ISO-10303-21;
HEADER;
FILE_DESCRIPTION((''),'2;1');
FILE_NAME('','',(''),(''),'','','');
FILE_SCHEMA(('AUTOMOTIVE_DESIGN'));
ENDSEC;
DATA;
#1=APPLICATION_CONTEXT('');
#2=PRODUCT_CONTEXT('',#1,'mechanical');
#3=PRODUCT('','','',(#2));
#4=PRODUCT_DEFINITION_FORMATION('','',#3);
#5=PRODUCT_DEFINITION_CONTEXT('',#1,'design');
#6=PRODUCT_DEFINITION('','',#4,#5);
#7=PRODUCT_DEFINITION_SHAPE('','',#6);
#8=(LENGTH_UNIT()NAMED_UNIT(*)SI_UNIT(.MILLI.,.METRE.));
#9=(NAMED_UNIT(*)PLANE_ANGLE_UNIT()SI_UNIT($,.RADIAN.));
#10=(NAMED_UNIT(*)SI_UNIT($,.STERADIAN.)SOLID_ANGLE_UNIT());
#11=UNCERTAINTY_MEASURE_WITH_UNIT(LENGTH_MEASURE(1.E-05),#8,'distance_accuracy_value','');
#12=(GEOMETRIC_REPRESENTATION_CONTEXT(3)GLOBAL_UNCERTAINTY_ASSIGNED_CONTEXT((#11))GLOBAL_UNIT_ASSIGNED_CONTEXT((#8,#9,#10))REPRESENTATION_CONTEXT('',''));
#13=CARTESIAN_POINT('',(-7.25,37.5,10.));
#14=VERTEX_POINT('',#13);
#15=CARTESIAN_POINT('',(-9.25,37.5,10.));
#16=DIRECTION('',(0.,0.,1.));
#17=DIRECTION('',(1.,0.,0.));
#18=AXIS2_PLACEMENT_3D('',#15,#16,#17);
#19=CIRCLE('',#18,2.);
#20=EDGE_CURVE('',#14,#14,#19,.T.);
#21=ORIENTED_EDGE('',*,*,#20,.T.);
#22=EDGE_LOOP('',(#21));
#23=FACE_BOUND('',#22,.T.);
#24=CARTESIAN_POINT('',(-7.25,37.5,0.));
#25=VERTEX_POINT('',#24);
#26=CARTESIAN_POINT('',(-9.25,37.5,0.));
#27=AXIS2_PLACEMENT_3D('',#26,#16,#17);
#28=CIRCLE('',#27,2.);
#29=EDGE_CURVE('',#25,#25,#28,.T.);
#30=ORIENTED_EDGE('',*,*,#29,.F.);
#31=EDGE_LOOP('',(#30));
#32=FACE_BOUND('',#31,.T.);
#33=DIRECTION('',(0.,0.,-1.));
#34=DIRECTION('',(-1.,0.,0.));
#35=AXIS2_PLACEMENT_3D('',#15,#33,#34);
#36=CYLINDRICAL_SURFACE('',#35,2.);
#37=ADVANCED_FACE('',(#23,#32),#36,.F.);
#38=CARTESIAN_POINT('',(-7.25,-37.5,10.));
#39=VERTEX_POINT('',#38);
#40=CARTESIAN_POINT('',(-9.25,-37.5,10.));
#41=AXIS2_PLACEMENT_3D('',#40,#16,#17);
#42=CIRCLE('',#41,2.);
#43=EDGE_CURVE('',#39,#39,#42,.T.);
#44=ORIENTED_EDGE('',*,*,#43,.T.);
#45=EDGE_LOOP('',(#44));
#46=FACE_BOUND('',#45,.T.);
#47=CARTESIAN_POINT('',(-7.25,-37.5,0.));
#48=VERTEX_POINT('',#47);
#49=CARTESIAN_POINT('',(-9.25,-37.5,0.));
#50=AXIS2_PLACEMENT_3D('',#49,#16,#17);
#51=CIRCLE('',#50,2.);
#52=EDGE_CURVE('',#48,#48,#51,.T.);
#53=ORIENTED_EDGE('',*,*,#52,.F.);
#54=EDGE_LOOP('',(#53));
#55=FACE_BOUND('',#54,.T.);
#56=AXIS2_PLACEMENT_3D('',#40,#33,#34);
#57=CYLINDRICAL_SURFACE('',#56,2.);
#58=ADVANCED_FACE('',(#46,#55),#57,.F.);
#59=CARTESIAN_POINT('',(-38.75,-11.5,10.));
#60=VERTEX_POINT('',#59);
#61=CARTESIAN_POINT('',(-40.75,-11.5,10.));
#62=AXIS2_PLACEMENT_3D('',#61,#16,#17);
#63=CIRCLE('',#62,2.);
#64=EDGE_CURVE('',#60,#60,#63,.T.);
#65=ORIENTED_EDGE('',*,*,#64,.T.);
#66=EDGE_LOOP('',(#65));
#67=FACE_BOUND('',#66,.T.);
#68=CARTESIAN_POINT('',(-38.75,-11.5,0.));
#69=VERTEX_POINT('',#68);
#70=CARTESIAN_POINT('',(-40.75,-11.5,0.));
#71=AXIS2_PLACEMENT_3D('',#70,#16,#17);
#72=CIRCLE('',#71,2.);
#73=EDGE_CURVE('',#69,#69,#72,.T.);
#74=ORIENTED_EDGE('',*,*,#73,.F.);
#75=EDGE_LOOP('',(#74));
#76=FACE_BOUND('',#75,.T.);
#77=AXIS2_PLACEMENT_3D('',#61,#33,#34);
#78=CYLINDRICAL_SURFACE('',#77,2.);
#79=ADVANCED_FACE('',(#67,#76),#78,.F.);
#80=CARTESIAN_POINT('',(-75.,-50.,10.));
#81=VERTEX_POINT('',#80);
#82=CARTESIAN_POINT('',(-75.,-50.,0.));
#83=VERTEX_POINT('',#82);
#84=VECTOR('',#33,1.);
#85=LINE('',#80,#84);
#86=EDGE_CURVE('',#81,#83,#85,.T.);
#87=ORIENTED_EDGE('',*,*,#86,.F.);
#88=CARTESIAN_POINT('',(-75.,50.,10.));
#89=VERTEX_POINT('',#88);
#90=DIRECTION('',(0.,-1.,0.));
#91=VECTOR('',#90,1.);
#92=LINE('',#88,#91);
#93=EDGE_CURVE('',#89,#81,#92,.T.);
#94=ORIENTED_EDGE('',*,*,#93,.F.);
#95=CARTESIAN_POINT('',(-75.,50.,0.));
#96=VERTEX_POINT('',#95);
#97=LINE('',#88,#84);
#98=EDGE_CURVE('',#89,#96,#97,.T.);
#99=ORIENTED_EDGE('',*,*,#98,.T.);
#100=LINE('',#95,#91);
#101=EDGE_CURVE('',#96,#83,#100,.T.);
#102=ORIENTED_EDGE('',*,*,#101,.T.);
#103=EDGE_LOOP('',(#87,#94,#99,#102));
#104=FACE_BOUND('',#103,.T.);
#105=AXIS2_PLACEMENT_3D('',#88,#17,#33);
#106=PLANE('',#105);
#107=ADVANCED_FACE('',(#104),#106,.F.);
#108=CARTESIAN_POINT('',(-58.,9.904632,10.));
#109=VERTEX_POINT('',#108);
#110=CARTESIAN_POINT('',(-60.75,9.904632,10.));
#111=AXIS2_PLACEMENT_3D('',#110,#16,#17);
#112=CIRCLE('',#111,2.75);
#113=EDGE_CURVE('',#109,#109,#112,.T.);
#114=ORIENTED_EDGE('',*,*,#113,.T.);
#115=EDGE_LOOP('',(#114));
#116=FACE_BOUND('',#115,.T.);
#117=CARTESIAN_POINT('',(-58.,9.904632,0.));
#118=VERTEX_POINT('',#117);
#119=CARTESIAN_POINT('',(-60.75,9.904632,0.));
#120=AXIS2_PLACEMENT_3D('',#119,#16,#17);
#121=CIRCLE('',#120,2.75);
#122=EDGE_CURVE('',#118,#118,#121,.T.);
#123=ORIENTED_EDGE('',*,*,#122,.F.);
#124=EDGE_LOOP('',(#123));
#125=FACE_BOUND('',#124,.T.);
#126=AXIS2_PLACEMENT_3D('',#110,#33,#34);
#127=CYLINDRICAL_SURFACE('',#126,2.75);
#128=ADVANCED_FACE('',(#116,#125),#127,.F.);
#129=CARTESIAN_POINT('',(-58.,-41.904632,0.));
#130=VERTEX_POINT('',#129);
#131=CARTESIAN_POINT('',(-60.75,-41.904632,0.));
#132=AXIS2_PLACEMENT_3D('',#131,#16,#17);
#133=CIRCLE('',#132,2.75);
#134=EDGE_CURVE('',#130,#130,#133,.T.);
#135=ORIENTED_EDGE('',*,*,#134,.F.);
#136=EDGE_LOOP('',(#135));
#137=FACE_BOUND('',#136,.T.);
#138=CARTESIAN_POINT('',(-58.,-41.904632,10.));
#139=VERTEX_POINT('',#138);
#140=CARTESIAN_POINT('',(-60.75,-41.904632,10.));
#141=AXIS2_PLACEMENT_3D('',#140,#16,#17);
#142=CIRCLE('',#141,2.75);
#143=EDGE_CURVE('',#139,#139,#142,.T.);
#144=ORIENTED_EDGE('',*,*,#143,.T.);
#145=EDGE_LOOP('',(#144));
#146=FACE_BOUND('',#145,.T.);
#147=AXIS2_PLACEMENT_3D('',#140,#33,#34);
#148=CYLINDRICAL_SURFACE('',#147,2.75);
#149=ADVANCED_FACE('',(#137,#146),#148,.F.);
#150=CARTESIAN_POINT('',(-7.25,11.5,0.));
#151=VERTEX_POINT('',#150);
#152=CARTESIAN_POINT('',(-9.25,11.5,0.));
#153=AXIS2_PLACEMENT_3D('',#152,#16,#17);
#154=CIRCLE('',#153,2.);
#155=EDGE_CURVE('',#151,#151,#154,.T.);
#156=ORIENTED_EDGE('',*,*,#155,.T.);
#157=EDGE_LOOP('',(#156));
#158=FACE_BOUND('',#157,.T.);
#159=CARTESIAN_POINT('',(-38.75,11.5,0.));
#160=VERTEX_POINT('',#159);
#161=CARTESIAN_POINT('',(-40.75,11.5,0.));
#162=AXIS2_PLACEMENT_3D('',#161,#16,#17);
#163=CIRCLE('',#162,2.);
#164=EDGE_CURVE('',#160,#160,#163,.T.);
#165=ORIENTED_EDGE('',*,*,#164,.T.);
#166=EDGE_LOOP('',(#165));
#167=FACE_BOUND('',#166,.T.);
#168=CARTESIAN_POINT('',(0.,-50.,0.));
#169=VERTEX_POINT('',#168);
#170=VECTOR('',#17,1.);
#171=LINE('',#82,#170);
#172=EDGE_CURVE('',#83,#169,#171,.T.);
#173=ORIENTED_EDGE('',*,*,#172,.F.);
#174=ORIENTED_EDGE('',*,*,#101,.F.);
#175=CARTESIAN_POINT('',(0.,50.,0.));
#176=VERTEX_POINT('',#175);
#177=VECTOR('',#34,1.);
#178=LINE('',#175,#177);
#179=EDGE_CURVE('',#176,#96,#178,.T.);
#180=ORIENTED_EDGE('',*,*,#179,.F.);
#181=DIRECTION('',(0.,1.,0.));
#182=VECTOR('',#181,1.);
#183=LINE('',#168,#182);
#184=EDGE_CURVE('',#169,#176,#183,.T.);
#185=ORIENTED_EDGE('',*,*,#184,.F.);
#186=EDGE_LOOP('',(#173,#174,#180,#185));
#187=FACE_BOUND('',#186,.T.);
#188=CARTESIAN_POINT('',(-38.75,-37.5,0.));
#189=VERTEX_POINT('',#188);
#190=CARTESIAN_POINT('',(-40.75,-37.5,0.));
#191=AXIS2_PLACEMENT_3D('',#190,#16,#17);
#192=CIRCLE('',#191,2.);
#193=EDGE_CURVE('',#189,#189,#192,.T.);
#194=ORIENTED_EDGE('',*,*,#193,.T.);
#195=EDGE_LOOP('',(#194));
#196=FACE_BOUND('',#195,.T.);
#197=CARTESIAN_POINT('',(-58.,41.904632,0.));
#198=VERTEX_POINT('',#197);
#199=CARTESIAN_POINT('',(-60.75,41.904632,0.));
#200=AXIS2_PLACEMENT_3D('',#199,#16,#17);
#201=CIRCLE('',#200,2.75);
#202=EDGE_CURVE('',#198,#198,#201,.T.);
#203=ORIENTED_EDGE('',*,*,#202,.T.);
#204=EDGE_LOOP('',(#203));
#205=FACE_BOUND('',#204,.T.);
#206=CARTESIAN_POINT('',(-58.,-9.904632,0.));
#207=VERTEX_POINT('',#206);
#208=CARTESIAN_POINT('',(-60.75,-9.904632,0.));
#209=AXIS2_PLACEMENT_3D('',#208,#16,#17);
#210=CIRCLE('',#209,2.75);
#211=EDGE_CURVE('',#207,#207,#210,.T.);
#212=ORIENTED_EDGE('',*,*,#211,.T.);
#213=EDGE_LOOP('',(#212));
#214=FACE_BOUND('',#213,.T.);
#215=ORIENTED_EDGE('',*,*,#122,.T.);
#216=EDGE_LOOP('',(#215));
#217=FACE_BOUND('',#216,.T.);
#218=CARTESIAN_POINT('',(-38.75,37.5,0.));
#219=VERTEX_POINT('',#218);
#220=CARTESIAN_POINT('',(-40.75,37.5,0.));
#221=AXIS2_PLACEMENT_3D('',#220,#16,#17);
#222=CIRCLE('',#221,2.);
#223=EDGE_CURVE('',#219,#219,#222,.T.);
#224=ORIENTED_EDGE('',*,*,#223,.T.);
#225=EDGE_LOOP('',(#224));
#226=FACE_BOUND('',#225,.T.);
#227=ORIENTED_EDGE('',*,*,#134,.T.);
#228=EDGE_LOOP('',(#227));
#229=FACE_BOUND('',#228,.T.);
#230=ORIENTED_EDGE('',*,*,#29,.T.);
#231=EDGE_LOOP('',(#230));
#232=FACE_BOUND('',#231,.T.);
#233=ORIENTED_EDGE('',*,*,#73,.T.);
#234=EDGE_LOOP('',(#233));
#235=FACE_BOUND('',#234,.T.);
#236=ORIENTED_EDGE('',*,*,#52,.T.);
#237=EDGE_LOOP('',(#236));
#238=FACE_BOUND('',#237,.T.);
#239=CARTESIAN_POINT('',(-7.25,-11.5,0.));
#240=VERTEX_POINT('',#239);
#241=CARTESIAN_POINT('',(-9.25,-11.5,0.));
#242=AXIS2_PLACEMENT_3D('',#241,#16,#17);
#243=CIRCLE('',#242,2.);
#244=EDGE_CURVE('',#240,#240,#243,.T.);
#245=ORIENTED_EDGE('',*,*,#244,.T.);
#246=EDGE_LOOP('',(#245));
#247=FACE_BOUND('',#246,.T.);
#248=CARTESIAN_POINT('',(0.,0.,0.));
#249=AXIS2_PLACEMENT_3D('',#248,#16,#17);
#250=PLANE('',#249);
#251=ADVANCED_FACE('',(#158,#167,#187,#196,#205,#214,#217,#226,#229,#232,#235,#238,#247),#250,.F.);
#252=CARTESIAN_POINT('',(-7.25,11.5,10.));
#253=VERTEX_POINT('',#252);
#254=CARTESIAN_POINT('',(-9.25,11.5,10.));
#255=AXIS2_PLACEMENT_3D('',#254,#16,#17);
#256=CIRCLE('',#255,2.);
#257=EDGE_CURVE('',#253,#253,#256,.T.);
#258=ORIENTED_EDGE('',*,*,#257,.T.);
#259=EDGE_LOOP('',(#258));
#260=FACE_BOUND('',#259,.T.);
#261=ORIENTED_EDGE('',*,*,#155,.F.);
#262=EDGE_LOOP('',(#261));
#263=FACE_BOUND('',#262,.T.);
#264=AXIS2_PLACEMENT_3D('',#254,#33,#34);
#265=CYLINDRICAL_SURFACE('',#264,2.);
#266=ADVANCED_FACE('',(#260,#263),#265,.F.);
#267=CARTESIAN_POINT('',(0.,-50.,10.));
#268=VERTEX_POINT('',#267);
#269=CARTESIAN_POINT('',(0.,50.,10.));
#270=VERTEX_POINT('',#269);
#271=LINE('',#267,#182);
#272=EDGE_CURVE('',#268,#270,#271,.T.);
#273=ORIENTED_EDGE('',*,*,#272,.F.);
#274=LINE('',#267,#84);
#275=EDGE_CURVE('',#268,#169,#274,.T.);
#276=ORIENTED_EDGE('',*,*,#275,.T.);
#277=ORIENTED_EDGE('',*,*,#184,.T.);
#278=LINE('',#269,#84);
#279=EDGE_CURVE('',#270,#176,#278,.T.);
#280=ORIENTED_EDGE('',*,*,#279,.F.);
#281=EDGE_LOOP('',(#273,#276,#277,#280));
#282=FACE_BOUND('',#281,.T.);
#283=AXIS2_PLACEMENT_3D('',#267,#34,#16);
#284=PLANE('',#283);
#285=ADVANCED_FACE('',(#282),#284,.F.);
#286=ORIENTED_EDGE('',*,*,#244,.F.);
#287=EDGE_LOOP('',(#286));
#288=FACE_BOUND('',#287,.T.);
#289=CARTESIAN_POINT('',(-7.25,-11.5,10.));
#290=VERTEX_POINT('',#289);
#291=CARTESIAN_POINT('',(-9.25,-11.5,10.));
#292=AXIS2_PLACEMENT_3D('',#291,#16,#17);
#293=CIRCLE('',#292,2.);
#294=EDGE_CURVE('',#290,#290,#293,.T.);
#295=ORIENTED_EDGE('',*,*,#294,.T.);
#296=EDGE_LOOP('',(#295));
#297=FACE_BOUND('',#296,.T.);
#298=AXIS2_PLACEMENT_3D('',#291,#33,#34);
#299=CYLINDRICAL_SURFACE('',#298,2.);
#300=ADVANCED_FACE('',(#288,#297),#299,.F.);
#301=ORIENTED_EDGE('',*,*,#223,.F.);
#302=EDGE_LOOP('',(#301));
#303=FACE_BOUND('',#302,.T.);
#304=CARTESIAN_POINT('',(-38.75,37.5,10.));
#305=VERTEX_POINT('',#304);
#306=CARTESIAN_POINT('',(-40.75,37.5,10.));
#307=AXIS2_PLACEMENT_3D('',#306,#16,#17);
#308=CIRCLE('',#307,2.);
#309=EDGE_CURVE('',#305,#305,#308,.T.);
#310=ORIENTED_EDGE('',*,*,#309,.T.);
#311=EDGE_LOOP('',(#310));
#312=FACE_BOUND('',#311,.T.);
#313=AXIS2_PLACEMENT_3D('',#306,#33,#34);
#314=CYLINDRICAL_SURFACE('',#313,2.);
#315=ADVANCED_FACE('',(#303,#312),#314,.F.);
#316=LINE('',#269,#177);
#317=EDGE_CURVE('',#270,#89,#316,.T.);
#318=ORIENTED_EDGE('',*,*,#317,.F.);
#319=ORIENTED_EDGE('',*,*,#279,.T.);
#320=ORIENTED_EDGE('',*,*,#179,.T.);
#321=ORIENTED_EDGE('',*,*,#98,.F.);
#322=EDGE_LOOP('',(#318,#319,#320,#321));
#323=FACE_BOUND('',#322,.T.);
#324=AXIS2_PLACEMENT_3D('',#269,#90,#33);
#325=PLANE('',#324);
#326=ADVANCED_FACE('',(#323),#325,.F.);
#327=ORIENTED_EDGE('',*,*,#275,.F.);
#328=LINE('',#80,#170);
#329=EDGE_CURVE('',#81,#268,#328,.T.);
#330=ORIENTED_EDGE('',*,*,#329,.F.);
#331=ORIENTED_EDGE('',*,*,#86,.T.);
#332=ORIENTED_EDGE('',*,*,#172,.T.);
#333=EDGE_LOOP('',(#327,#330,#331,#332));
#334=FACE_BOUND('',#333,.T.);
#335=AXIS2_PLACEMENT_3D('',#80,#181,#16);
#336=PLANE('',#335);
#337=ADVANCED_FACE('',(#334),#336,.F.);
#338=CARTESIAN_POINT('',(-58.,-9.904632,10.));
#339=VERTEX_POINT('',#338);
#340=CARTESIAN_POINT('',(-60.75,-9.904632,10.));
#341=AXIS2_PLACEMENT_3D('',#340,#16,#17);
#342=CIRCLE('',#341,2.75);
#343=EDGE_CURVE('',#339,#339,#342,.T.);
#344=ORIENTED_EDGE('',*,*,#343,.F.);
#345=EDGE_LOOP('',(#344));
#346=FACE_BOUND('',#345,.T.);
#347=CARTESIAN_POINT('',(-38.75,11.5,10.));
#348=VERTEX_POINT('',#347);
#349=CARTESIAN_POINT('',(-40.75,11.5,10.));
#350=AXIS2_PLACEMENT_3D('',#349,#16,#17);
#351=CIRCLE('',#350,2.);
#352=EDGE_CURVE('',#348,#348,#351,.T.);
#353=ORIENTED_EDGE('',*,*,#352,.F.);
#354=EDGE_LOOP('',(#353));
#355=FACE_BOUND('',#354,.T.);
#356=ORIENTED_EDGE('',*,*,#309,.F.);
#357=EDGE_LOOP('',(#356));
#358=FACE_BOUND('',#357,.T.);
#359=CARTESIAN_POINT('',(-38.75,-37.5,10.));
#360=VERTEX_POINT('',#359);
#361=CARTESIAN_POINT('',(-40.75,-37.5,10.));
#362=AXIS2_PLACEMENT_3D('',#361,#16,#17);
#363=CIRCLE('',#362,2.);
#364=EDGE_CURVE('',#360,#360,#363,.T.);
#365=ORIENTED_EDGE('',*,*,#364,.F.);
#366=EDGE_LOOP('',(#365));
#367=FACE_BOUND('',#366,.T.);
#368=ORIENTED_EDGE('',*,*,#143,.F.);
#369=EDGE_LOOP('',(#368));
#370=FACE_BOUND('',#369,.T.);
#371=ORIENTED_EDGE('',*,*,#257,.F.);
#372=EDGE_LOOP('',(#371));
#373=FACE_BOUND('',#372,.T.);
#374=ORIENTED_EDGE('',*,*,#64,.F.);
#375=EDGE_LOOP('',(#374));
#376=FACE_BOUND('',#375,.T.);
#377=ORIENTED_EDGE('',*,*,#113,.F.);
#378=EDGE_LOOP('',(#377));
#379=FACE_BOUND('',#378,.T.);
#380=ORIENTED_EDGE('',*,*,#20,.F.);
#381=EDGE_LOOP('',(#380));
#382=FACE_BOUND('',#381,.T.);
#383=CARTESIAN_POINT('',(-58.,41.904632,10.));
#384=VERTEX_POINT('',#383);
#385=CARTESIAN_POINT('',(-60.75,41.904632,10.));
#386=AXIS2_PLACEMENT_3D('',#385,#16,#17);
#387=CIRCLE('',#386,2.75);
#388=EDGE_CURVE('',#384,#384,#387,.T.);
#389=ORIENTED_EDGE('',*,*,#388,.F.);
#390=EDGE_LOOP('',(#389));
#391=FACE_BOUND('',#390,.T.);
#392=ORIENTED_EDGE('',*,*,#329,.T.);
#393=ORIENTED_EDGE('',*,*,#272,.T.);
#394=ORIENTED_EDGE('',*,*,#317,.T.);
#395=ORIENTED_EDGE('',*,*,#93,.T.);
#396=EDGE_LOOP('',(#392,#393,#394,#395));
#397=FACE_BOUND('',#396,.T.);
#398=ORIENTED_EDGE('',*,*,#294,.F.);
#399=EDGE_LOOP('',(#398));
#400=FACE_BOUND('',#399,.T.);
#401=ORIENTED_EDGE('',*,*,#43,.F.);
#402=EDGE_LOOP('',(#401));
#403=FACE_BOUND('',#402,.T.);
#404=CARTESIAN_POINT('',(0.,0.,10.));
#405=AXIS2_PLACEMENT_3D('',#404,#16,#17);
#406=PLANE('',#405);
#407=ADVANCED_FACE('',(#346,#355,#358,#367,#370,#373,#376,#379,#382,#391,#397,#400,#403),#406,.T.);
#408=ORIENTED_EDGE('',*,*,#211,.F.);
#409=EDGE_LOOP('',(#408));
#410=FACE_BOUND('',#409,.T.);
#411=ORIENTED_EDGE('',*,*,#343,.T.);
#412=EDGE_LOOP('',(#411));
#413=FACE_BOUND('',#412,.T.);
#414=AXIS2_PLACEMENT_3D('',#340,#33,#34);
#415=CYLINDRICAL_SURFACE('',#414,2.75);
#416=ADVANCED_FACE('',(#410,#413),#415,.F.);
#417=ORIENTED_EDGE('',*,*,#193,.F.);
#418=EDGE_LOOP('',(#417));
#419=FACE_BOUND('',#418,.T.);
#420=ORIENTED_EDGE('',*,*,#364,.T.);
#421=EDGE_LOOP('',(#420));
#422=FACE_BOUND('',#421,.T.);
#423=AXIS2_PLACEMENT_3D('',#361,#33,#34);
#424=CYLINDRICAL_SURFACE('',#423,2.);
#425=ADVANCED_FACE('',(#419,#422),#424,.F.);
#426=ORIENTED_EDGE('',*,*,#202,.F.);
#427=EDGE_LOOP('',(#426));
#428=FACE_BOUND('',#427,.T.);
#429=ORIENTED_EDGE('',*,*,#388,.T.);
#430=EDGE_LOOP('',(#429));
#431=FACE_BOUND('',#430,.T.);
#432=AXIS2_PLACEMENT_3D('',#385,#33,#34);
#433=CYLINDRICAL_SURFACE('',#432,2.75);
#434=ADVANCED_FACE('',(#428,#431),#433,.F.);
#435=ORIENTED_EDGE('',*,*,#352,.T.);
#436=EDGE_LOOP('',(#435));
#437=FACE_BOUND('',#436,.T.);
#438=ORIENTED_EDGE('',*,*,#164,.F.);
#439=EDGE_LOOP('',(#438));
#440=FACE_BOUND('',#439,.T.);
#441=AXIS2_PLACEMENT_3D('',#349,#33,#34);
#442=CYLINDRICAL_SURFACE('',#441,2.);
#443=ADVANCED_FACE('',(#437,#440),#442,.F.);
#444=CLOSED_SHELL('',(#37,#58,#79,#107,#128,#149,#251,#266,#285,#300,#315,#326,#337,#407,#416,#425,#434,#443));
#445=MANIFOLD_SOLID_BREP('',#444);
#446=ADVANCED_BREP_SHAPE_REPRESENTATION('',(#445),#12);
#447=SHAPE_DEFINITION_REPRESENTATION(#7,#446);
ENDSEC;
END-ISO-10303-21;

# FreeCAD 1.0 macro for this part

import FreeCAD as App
import Part
import Sketcher

V = App.Vector

doc = App.newDocument("Part")
body = doc.addObject("PartDesign::Body", "Body")

# Sketch on XY plane
sketch1 = body.newObject("Sketcher::SketchObject", "Sketch")
sketch1.AttachmentSupport = (doc.getObject("XY_Plane"), [""])
sketch1.MapMode = "FlatFace"
sketch1.addGeometry(Part.LineSegment(V(-75, 50, 0), V(-75, -50, 0)), False)
sketch1.addGeometry(Part.LineSegment(V(-75, -50, 0), V(0, -50, 0)), False)
sketch1.addGeometry(Part.LineSegment(V(0, -50, 0), V(0, 50, 0)), False)
sketch1.addGeometry(Part.LineSegment(V(0, 50, 0), V(-75, 50, 0)), False)
sketch1.addGeometry(Part.Circle(V(-60.8, -41.9, 0), V(0, 0, 1), 2.8), False)
sketch1.addGeometry(Part.Circle(V(-40.8, -37.5, 0), V(0, 0, 1), 2), False)
sketch1.addGeometry(Part.Circle(V(-60.8, -9.9, 0), V(0, 0, 1), 2.8), False)
sketch1.addGeometry(Part.Circle(V(-40.8, -11.5, 0), V(0, 0, 1), 2), False)
sketch1.addGeometry(Part.Circle(V(-9.2, -37.5, 0), V(0, 0, 1), 2), False)
sketch1.addGeometry(Part.Circle(V(-9.2, -11.5, 0), V(0, 0, 1), 2), False)
sketch1.addGeometry(Part.Circle(V(-60.8, 9.9, 0), V(0, 0, 1), 2.8), False)
sketch1.addGeometry(Part.Circle(V(-40.8, 11.5, 0), V(0, 0, 1), 2), False)
sketch1.addGeometry(Part.Circle(V(-60.8, 41.9, 0), V(0, 0, 1), 2.8), False)
sketch1.addGeometry(Part.Circle(V(-40.8, 37.5, 0), V(0, 0, 1), 2), False)
sketch1.addGeometry(Part.Circle(V(-9.2, 11.5, 0), V(0, 0, 1), 2), False)
sketch1.addGeometry(Part.Circle(V(-9.2, 37.5, 0), V(0, 0, 1), 2), False)
sketch1.addConstraint(Sketcher.Constraint("Coincident", 0, 2, 1, 1))
sketch1.addConstraint(Sketcher.Constraint("Coincident", 1, 2, 2, 1))
sketch1.addConstraint(Sketcher.Constraint("Coincident", 2, 2, 3, 1))
sketch1.addConstraint(Sketcher.Constraint("Coincident", 3, 2, 0, 1))
sketch1.addConstraint(Sketcher.Constraint("Vertical", 0))
sketch1.addConstraint(Sketcher.Constraint("Horizontal", 1))
sketch1.addConstraint(Sketcher.Constraint("Vertical", 2))
sketch1.addConstraint(Sketcher.Constraint("Horizontal", 3))
sketch1.addConstraint(Sketcher.Constraint("Equal", 4, 6))
sketch1.addConstraint(Sketcher.Constraint("Equal", 5, 7))
sketch1.addConstraint(Sketcher.Constraint("Equal", 7, 8))
sketch1.addConstraint(Sketcher.Constraint("Equal", 8, 9))
sketch1.addConstraint(Sketcher.Constraint("Equal", 6, 10))
sketch1.addConstraint(Sketcher.Constraint("Equal", 9, 11))
sketch1.addConstraint(Sketcher.Constraint("Equal", 10, 12))
sketch1.addConstraint(Sketcher.Constraint("Equal", 11, 13))
sketch1.addConstraint(Sketcher.Constraint("Equal", 13, 14))
sketch1.addConstraint(Sketcher.Constraint("Equal", 14, 15))
sketch1.addConstraint(Sketcher.Constraint("Symmetric", 1, 2, 2, 2, -1, 1))
sketch1.addConstraint(Sketcher.Constraint("Symmetric", 6, 3, 10, 3, -1))
sketch1.addConstraint(Sketcher.Constraint("Symmetric", 7, 3, 11, 3, -1))
sketch1.addConstraint(Sketcher.Constraint("Symmetric", 4, 3, 12, 3, -1))
sketch1.addConstraint(Sketcher.Constraint("Symmetric", 5, 3, 13, 3, -1))
sketch1.addConstraint(Sketcher.Constraint("Symmetric", 9, 3, 14, 3, -1))
sketch1.addConstraint(Sketcher.Constraint("Symmetric", 8, 3, 15, 3, -1))
sketch1.addConstraint(Sketcher.Constraint("Horizontal", 5, 3, 8, 3))
sketch1.addConstraint(Sketcher.Constraint("Horizontal", 7, 3, 9, 3))
sketch1.addConstraint(Sketcher.Constraint("Vertical", 4, 3, 6, 3))
sketch1.addConstraint(Sketcher.Constraint("Vertical", 5, 3, 7, 3))
sketch1.addConstraint(Sketcher.Constraint("Vertical", 8, 3, 9, 3))
sketch1.addConstraint(Sketcher.Constraint("Diameter", 5, 4.0))
sketch1.addConstraint(Sketcher.Constraint("Diameter", 4, 5.5))
sketch1.addConstraint(Sketcher.Constraint("DistanceX", 1, 1, 1, 2, 75.0))
sketch1.addConstraint(Sketcher.Constraint("DistanceY", 0, 2, 0, 1, 100.0))
sketch1.addConstraint(Sketcher.Constraint("DistanceX", 4, 3, 5, 3, 20.0))
sketch1.addConstraint(Sketcher.Constraint("DistanceY", 4, 3, 6, 3, 32.0))
sketch1.addConstraint(Sketcher.Constraint("DistanceY", 5, 3, 7, 3, 26.0))
sketch1.addConstraint(Sketcher.Constraint("DistanceY", 7, 3, 11, 3, 23.0))
sketch1.addConstraint(Sketcher.Constraint("DistanceX", 5, 3, 8, 3, 31.5))
sketch1.addConstraint(Sketcher.Constraint("DistanceX", 4, 3, -1, 1, 60.75))
sketch1.addConstraint(Sketcher.Constraint("DistanceY", 4, 3, -1, 1, 41.904632))
pad1 = body.newObject("PartDesign::Pad", "Pad")
pad1.Profile = sketch1
pad1.Length = 10

doc.recompute()
